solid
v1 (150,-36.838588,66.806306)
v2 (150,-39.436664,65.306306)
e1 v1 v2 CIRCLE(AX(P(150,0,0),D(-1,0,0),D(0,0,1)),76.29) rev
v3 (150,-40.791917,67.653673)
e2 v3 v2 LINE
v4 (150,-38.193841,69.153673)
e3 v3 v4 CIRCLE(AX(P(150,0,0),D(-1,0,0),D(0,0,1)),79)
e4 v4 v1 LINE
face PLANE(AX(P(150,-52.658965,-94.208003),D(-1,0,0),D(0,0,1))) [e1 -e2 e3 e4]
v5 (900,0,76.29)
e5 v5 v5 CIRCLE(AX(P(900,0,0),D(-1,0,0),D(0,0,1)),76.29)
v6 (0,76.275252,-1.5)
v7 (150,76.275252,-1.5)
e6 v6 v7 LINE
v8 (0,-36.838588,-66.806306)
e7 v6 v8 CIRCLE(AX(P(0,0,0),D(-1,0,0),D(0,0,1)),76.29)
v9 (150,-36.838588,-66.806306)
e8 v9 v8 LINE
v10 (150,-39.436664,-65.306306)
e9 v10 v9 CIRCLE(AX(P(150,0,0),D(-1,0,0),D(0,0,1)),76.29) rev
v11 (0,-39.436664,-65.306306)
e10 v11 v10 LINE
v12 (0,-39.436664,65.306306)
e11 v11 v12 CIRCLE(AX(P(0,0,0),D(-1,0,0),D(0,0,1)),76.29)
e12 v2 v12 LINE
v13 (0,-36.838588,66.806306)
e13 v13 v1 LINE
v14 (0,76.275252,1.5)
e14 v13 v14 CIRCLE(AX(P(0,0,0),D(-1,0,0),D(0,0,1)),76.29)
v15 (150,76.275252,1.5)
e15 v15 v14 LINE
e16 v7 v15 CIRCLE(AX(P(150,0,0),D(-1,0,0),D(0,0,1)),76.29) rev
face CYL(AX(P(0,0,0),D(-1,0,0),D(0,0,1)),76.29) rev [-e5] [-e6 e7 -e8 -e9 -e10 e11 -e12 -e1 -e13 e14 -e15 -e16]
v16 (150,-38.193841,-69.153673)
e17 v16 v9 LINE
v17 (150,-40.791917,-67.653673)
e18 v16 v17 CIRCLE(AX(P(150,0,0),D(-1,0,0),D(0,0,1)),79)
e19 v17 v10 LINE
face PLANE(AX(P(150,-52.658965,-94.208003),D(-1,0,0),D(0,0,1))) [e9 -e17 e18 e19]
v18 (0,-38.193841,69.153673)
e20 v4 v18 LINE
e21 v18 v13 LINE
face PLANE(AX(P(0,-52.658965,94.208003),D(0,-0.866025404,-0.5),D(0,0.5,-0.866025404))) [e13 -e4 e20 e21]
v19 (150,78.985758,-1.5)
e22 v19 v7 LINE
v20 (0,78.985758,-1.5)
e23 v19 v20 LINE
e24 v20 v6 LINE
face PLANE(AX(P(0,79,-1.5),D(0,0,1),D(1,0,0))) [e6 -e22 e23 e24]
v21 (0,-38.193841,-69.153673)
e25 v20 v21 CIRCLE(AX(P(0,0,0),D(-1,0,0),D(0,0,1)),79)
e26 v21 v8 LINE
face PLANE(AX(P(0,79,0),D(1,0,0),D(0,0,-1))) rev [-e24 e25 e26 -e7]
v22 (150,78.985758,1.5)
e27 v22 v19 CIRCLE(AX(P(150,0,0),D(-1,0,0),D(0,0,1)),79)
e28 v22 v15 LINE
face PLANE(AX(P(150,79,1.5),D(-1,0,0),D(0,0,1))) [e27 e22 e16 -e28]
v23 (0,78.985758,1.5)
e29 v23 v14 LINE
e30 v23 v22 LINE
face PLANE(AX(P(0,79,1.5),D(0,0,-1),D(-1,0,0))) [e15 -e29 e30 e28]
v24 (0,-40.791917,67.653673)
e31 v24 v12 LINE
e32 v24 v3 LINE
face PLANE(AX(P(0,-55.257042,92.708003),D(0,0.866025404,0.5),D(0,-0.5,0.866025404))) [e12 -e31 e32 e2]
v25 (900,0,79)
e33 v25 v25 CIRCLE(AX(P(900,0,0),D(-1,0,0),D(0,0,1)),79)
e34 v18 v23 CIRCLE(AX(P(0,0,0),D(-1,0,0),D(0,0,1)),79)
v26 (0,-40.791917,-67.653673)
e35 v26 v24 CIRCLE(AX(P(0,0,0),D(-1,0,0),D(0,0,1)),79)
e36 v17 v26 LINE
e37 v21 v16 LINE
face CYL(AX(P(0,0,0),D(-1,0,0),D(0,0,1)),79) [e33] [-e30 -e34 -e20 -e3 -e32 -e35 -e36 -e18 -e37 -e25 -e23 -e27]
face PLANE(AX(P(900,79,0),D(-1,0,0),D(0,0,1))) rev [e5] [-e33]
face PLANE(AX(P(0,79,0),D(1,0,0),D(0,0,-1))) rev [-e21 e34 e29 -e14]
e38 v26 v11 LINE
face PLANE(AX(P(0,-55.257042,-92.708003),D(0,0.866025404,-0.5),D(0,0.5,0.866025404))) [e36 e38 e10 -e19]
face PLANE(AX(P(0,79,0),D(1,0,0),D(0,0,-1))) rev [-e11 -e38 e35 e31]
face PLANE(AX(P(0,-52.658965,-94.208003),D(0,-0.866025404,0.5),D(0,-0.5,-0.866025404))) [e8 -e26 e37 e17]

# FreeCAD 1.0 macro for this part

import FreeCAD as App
import Part
import Sketcher
from FreeCAD import Vector
Q = App.Units.Quantity

doc = App.newDocument("Part")
body = doc.addObject("PartDesign::Body", "Body")

# Sketch on XY plane
sketch1 = body.newObject("Sketcher::SketchObject", "Sketch")
sketch1.AttachmentSupport = (doc.getObject("XY_Plane"), [""])
sketch1.MapMode = "FlatFace"
sketch1.addGeometry([
    Part.LineSegment(Vector(0, 79, 0), Vector(0, 76.3, 0)),
    Part.LineSegment(Vector(0, 76.3, 0), Vector(900, 76.3, 0)),
    Part.LineSegment(Vector(900, 76.3, 0), Vector(900, 79, 0)),
    Part.LineSegment(Vector(900, 79, 0), Vector(0, 79, 0)),
], False)
sketch1.addConstraint([
    Sketcher.Constraint("Coincident", 0, 2, 1, 1),
    Sketcher.Constraint("Coincident", 1, 2, 2, 1),
    Sketcher.Constraint("Coincident", 2, 2, 3, 1),
    Sketcher.Constraint("Coincident", 3, 2, 0, 1),
    Sketcher.Constraint("Vertical", 0),
    Sketcher.Constraint("Horizontal", 1),
    Sketcher.Constraint("Vertical", 2),
    Sketcher.Constraint("Horizontal", 3),
    Sketcher.Constraint("PointOnObject", 0, 2, -2),
    Sketcher.Constraint("DistanceX", 1, 1, 1, 2, Q("900 mm")),
    Sketcher.Constraint("DistanceY", -1, 1, 2, 2, Q("79 mm")),
    Sketcher.Constraint("DistanceY", 0, 2, 0, 1, Q("2.71 mm")),
])
revolution = body.newObject("PartDesign::Revolution", "Revolution")
revolution.Profile = sketch1
revolution.ReferenceAxis = (sketch1, ["H_Axis"])
revolution.Angle = 360

# Sketch on XZ plane
sketch2 = body.newObject("Sketcher::SketchObject", "Sketch001")
sketch2.AttachmentSupport = (doc.getObject("XZ_Plane"), [""])
sketch2.MapMode = "FlatFace"
sketch2.addGeometry([
    Part.LineSegment(Vector(0, -1.5, 0), Vector(0, 1.5, 0)),
    Part.LineSegment(Vector(0, 1.5, 0), Vector(150, 1.5, 0)),
    Part.LineSegment(Vector(150, 1.5, 0), Vector(150, -1.5, 0)),
    Part.LineSegment(Vector(150, -1.5, 0), Vector(0, -1.5, 0)),
], False)
sketch2.addConstraint([
    Sketcher.Constraint("Coincident", 0, 2, 1, 1),
    Sketcher.Constraint("Coincident", 1, 2, 2, 1),
    Sketcher.Constraint("Coincident", 2, 2, 3, 1),
    Sketcher.Constraint("Coincident", 3, 2, 0, 1),
    Sketcher.Constraint("Vertical", 0),
    Sketcher.Constraint("Horizontal", 1),
    Sketcher.Constraint("Vertical", 2),
    Sketcher.Constraint("Horizontal", 3),
    Sketcher.Constraint("Symmetric", 0, 2, 3, 2, -1, 1),
    Sketcher.Constraint("DistanceX", 1, 1, 1, 2, Q("150 mm")),
    Sketcher.Constraint("DistanceY", 0, 1, 0, 2, Q("3 mm")),
])
pocket1 = body.newObject("PartDesign::Pocket", "Pocket")
pocket1.Profile = sketch2
pocket1.Type = "ThroughAll"
doc.recompute()

polarpattern = body.newObject("PartDesign::PolarPattern", "PolarPattern")
polarpattern.Originals = [pocket1]
polarpattern.Axis = (doc.getObject("X_Axis"), [""])
polarpattern.Angle = 360
polarpattern.Occurrences = 3
body.Tip = polarpattern

doc.recompute()
